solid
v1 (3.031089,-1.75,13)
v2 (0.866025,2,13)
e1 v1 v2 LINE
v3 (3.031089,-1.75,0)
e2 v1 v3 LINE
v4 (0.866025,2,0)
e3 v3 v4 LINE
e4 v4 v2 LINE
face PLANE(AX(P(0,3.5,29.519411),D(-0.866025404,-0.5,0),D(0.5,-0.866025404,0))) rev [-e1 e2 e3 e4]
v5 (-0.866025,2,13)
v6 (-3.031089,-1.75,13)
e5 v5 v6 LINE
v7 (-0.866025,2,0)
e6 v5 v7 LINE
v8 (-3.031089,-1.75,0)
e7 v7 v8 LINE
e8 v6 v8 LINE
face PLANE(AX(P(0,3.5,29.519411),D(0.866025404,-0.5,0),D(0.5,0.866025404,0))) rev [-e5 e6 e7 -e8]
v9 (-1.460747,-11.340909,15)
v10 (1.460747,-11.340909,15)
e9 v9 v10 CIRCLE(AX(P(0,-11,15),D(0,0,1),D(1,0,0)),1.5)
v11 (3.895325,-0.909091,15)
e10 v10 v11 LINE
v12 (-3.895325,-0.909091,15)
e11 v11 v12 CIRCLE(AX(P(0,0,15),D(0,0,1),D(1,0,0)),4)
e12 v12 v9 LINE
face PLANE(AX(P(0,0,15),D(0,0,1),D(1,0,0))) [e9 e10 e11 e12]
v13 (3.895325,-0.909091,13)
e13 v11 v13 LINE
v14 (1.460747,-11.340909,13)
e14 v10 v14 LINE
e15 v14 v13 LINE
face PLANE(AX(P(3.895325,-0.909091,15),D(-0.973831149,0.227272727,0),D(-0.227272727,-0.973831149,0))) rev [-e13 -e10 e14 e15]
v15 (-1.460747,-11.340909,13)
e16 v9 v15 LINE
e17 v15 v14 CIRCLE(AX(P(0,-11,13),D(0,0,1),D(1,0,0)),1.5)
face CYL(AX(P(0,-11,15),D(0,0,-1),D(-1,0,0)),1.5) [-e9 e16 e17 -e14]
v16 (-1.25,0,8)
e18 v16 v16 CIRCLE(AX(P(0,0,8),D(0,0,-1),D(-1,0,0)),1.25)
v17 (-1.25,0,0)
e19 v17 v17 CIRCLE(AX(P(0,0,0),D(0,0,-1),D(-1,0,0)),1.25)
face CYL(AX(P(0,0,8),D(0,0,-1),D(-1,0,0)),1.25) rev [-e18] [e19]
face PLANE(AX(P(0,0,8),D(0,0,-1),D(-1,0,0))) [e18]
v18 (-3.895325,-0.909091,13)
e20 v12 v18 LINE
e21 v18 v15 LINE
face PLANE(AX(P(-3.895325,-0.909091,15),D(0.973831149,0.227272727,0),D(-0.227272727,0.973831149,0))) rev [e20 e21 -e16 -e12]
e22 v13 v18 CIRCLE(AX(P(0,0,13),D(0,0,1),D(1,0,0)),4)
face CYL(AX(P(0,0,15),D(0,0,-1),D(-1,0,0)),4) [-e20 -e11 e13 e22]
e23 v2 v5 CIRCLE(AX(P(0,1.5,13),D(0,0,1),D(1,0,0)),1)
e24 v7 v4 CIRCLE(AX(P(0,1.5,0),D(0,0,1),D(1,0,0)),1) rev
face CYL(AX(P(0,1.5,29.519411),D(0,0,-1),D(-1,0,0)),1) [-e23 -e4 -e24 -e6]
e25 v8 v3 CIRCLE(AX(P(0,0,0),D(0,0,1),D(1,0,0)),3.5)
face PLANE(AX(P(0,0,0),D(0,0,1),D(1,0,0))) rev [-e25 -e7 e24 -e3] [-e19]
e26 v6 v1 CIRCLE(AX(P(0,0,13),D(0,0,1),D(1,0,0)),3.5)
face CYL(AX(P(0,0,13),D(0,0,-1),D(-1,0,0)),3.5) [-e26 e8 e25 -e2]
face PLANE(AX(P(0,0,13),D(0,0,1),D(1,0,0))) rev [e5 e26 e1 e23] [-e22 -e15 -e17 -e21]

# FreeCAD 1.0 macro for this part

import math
import FreeCAD as App
import Part
import Sketcher

V = App.Vector
Q = App.Units.Quantity


def edges_at(feature, points):
    """Names of the edges that pass closest to the given points."""
    edges = feature.Shape.Edges
    near = lambda p: min(range(len(edges)), key=lambda i: edges[i].distToShape(Part.Vertex(*p))[0])
    return sorted({f"Edge{near(p) + 1}" for p in points})

doc = App.newDocument("Part")
body = doc.addObject("PartDesign::Body", "Body")

# Sketch on XY plane
sketch1 = body.newObject("Sketcher::SketchObject", "Sketch")
sketch1.AttachmentSupport = (doc.getObject("XY_Plane"), [""])
sketch1.MapMode = "FlatFace"
sketch1.addGeometry(Part.Circle(V(0, 0, 0), V(0, 0, 1), 3.5), False)
sketch1.addConstraint(Sketcher.Constraint("Coincident", 0, 3, -1, 1))
sketch1.addConstraint(Sketcher.Constraint("Diameter", 0, 7.0))
pad1 = body.newObject("PartDesign::Pad", "Pad")
pad1.Profile = sketch1
pad1.Length = 13

# Sketch on XY plane
sketch2 = body.newObject("Sketcher::SketchObject", "Sketch001")
sketch2.AttachmentSupport = (doc.getObject("XY_Plane"), [""])
sketch2.MapMode = "FlatFace"
sketch2.AttachmentOffset = App.Placement(V(0, 0, 13), App.Rotation())
sketch2.addGeometry(Part.LineSegment(V(-3.9, -0.9, 0), V(-1.5, -11.3, 0)), False)
sketch2.addGeometry(Part.ArcOfCircle(Part.Circle(V(0, -11, 0), V(0, 0, 1), 1.5), math.radians(-167), math.radians(-13)), False)
sketch2.addGeometry(Part.LineSegment(V(1.5, -11.3, 0), V(3.9, -0.9, 0)), False)
sketch2.addGeometry(Part.ArcOfCircle(Part.Circle(V(0, 0, 0), V(0, 0, 1), 4), math.radians(-13), math.radians(193)), False)
sketch2.addConstraint(Sketcher.Constraint("Tangent", 0, 2, 1, 1))
sketch2.addConstraint(Sketcher.Constraint("Tangent", 1, 2, 2, 1))
sketch2.addConstraint(Sketcher.Constraint("Tangent", 2, 2, 3, 1))
sketch2.addConstraint(Sketcher.Constraint("Tangent", 3, 2, 0, 1))
sketch2.addConstraint(Sketcher.Constraint("Coincident", 3, 3, -1, 1))
sketch2.addConstraint(Sketcher.Constraint("PointOnObject", 1, 3, -2))
sketch2.addConstraint(Sketcher.Constraint("Radius", 3, 4.0))
sketch2.addConstraint(Sketcher.Constraint("Radius", 1, 1.5))
sketch2.addConstraint(Sketcher.Constraint("DistanceY", 1, 3, -1, 1, 11.0))
pad2 = body.newObject("PartDesign::Pad", "Pad001")
pad2.Profile = sketch2
pad2.Length = 2

# Sketch on XY plane
sketch3 = body.newObject("Sketcher::SketchObject", "Sketch002")
sketch3.AttachmentSupport = (doc.getObject("XY_Plane"), [""])
sketch3.MapMode = "FlatFace"
sketch3.addGeometry(Part.LineSegment(V(3, -1.8, 0), V(0, 3.5, 0)), False)
sketch3.addGeometry(Part.LineSegment(V(0, 3.5, 0), V(-3, -1.8, 0)), False)
sketch3.addGeometry(Part.LineSegment(V(-3, -1.8, 0), V(-6.8, -1.8, 0)), False)
sketch3.addGeometry(Part.LineSegment(V(-6.8, -1.8, 0), V(0, 7.7, 0)), False)
sketch3.addGeometry(Part.LineSegment(V(0, 7.7, 0), V(6.8, -1.8, 0)), False)
sketch3.addGeometry(Part.LineSegment(V(6.8, -1.8, 0), V(3, -1.8, 0)), False)
sketch3.addConstraint(Sketcher.Constraint("Coincident", 0, 2, 1, 1))
sketch3.addConstraint(Sketcher.Constraint("Coincident", 1, 2, 2, 1))
sketch3.addConstraint(Sketcher.Constraint("Coincident", 2, 2, 3, 1))
sketch3.addConstraint(Sketcher.Constraint("Coincident", 3, 2, 4, 1))
sketch3.addConstraint(Sketcher.Constraint("Coincident", 4, 2, 5, 1))
sketch3.addConstraint(Sketcher.Constraint("Coincident", 5, 2, 0, 1))
sketch3.addConstraint(Sketcher.Constraint("Horizontal", 2))
sketch3.addConstraint(Sketcher.Constraint("Horizontal", 5))
sketch3.addConstraint(Sketcher.Constraint("Symmetric", 2, 2, 4, 2, -2))
sketch3.addConstraint(Sketcher.Constraint("PointOnObject", 0, 2, -2))
sketch3.addConstraint(Sketcher.Constraint("PointOnObject", 3, 2, -2))
sketch3.addConstraint(Sketcher.Constraint("Equal", 2, 5))
sketch3.addConstraint(Sketcher.Constraint("Angle", 0, Q("120 deg")))
sketch3.addConstraint(Sketcher.Constraint("DistanceY", -1, 1, 0, 2, 3.5))
sketch3.addConstraint(Sketcher.Constraint("DistanceY", 1, 2, -1, 1, 1.75))
sketch3.addConstraint(Sketcher.Constraint("DistanceX", 2, 2, 2, 1, 3.72886))
sketch3.addConstraint(Sketcher.Constraint("Distance", 3, 11.653335))
pocket1 = body.newObject("PartDesign::Pocket", "Pocket")
pocket1.Profile = sketch3
pocket1.Length = 13
pocket1.Reversed = True

# Sketch on XY plane
sketch4 = body.newObject("Sketcher::SketchObject", "Sketch003")
sketch4.AttachmentSupport = (doc.getObject("XY_Plane"), [""])
sketch4.MapMode = "FlatFace"
sketch4.addGeometry(Part.Circle(V(0, 0, 0), V(0, 0, 1), 1.2), False)
sketch4.addConstraint(Sketcher.Constraint("Coincident", 0, 3, -1, 1))
sketch4.addConstraint(Sketcher.Constraint("Diameter", 0, 2.5))
pocket2 = body.newObject("PartDesign::Pocket", "Pocket001")
pocket2.Profile = sketch4
pocket2.Length = 8
pocket2.Reversed = True
doc.recompute()

fillet = body.newObject("PartDesign::Fillet", "Fillet")
fillet.Base = (pocket2, edges_at(pocket2, [(0, 3.5, 6.5)]))
fillet.Radius = 1

doc.recompute()
